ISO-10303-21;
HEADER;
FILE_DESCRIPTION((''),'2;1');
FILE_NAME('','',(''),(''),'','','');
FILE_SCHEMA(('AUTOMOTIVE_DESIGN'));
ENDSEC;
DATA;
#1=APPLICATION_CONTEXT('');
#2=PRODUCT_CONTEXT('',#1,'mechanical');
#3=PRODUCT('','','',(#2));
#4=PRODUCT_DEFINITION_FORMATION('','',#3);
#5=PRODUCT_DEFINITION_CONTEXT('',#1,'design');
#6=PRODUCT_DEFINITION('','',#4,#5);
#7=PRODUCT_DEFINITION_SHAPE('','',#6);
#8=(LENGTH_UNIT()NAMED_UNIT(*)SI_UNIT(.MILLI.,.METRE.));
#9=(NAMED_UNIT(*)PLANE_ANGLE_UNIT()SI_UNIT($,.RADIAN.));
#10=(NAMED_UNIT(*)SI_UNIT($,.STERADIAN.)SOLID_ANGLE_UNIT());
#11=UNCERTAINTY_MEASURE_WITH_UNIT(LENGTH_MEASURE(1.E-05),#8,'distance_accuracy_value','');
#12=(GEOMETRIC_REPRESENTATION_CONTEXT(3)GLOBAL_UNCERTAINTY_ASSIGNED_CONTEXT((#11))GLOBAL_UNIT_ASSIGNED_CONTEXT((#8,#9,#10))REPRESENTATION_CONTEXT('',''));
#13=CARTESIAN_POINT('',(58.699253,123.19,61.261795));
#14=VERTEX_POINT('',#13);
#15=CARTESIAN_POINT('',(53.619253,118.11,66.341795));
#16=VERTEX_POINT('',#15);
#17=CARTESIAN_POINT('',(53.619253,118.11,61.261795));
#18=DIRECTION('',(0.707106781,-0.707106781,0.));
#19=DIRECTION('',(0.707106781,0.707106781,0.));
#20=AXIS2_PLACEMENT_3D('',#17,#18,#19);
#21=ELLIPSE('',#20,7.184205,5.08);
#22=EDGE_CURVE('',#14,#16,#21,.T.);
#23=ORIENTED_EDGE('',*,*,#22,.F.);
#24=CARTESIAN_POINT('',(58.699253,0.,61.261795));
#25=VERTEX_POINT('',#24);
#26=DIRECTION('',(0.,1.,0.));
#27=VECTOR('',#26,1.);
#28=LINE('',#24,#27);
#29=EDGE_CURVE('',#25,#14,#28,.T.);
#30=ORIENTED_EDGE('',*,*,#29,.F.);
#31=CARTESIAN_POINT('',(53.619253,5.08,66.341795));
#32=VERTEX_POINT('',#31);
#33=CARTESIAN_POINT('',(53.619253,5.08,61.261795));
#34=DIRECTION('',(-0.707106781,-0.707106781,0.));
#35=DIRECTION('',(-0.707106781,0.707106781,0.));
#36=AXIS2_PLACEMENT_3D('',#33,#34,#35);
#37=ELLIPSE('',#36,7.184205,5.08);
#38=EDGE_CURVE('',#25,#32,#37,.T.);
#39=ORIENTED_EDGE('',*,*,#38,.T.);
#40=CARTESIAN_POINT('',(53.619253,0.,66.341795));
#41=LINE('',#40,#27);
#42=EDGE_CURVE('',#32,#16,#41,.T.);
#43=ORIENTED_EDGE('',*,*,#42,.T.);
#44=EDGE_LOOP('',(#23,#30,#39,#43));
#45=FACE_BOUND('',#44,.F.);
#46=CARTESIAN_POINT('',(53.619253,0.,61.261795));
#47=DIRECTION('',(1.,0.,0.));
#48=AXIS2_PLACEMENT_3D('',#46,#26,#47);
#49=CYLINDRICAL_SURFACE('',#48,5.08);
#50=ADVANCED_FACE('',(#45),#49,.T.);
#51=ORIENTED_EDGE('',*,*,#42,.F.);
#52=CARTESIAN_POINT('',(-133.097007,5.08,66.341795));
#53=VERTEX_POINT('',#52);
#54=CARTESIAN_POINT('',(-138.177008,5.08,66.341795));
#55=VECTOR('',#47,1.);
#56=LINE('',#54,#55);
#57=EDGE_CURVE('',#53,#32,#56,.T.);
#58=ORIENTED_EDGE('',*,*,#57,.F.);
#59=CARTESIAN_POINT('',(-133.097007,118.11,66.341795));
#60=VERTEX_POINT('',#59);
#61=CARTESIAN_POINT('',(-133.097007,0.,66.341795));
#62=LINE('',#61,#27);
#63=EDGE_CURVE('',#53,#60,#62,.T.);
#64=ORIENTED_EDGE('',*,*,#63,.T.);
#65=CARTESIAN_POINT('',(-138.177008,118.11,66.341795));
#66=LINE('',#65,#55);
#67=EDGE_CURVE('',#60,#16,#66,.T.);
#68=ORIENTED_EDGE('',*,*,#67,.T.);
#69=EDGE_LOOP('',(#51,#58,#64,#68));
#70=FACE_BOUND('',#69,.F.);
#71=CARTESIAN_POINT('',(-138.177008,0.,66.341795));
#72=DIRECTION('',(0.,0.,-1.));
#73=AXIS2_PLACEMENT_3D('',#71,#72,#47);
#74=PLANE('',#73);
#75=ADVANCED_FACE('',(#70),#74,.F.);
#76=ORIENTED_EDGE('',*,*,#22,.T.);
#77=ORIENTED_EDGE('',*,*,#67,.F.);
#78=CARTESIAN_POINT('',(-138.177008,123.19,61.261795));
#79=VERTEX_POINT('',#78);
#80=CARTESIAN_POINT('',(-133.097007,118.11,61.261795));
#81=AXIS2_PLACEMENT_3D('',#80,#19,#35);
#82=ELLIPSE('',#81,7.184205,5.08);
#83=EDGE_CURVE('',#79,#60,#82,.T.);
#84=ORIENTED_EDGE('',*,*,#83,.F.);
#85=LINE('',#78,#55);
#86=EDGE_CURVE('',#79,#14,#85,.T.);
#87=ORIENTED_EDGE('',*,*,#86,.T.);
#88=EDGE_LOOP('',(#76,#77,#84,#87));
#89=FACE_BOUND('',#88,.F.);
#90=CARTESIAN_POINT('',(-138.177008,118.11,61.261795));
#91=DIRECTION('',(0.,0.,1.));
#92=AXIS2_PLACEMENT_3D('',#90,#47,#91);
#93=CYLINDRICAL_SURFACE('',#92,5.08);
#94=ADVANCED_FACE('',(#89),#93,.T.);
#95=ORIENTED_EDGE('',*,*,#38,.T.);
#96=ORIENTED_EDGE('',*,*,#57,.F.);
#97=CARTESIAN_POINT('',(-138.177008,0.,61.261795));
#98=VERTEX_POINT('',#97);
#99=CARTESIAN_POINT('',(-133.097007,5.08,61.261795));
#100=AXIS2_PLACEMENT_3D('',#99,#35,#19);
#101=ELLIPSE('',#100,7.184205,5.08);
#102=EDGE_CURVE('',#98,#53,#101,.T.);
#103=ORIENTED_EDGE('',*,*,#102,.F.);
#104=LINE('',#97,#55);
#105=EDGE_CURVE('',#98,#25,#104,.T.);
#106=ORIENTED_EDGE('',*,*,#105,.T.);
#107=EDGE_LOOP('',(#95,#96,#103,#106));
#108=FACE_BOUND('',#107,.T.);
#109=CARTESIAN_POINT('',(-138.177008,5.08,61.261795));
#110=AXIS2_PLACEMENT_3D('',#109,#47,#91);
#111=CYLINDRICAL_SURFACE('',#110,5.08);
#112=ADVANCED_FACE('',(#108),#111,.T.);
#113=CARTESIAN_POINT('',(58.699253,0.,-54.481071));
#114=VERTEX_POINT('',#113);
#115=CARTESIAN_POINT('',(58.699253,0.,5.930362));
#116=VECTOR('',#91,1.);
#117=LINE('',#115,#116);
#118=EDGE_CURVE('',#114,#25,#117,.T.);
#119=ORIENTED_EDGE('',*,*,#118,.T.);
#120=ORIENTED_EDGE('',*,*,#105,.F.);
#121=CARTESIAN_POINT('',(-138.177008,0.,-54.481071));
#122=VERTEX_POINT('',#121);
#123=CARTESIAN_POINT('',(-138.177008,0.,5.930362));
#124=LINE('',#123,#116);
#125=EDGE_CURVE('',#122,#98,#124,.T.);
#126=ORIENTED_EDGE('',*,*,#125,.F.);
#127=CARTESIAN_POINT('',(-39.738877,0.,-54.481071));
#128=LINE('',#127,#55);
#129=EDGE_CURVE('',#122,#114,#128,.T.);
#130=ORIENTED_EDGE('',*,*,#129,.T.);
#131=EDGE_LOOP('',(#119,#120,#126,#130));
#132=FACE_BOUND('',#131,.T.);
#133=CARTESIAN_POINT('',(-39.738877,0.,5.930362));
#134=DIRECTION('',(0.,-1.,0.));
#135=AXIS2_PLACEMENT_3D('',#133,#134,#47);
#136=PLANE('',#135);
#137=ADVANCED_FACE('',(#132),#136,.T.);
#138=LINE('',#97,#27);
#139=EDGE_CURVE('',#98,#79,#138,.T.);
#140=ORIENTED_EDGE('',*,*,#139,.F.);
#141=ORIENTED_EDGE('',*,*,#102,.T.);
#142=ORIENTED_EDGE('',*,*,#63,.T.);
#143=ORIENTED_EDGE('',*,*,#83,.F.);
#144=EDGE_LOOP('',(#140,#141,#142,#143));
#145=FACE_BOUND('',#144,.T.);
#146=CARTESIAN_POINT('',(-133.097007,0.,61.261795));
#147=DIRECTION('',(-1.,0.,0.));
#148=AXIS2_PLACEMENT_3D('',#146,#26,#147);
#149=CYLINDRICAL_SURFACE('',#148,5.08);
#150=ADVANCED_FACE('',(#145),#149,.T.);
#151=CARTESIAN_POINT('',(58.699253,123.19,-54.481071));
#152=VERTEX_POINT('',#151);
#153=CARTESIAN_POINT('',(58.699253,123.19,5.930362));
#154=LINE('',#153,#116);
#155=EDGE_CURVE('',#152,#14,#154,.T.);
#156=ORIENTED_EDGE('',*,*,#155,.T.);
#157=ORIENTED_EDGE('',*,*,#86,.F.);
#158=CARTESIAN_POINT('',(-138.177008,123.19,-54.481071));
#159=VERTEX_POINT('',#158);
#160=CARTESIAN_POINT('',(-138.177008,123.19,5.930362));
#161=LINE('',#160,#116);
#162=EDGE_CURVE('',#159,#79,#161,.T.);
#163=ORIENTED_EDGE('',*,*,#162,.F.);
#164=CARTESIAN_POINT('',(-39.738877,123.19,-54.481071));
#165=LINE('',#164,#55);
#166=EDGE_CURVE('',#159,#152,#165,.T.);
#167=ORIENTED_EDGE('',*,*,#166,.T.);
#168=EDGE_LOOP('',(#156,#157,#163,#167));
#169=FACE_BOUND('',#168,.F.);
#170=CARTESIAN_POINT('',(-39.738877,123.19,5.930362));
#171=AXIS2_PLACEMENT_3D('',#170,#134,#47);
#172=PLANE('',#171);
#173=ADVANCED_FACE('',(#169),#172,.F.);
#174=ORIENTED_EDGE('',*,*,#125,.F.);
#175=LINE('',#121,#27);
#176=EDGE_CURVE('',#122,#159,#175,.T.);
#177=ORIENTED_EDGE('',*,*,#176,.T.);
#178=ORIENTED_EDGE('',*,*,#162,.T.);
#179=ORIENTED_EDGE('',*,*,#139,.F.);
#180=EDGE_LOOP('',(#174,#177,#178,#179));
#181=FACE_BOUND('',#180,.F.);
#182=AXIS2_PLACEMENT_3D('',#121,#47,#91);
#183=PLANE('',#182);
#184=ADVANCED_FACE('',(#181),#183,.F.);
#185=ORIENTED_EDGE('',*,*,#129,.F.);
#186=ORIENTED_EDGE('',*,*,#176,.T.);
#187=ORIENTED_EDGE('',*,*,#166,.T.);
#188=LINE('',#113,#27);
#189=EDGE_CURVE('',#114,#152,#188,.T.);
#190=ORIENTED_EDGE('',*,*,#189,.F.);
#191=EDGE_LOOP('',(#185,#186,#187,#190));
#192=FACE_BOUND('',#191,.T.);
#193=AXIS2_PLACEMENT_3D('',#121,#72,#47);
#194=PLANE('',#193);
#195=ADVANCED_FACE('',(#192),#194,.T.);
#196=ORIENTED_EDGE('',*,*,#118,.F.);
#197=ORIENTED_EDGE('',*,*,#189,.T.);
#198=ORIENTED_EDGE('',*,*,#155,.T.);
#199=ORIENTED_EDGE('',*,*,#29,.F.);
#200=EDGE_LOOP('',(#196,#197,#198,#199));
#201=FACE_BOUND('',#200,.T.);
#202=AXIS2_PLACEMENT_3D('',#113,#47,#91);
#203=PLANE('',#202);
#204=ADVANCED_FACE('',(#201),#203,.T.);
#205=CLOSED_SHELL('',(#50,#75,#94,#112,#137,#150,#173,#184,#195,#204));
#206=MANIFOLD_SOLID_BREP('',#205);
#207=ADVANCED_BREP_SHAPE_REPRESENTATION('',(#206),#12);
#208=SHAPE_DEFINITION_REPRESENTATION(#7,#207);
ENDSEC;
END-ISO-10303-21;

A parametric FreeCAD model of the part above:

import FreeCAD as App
import Part
import Sketcher
Q = App.Units.Quantity


def edges_at(feature, points):
    """Names of the edges that pass closest to the given points."""
    edges = feature.Shape.Edges
    near = lambda p: min(range(len(edges)), key=lambda i: edges[i].distToShape(Part.Vertex(*p))[0])
    return sorted({f"Edge{near(p) + 1}" for p in points})

doc = App.newDocument("Part")
body = doc.addObject("PartDesign::Body", "Body")

# Sketch on XZ plane
sketch1 = body.newObject("Sketcher::SketchObject", "Sketch")
sketch1.AttachmentSupport = (doc.getObject("XZ_Plane"), [""])
sketch1.MapMode = "FlatFace"
sketch1.addGeometry(Part.LineSegment(App.Vector(-138, 66, 0), App.Vector(-138, -54, 0)), False)
sketch1.addGeometry(Part.LineSegment(App.Vector(-138, -54, 0), App.Vector(59, -54, 0)), False)
sketch1.addGeometry(Part.LineSegment(App.Vector(59, -54, 0), App.Vector(59, 66, 0)), False)
sketch1.addGeometry(Part.LineSegment(App.Vector(59, 66, 0), App.Vector(-138, 66, 0)), False)
sketch1.addConstraint(Sketcher.Constraint("Coincident", 0, 2, 1, 1))
sketch1.addConstraint(Sketcher.Constraint("Coincident", 1, 2, 2, 1))
sketch1.addConstraint(Sketcher.Constraint("Coincident", 2, 2, 3, 1))
sketch1.addConstraint(Sketcher.Constraint("Coincident", 3, 2, 0, 1))
sketch1.addConstraint(Sketcher.Constraint("Vertical", 0))
sketch1.addConstraint(Sketcher.Constraint("Horizontal", 1))
sketch1.addConstraint(Sketcher.Constraint("Vertical", 2))
sketch1.addConstraint(Sketcher.Constraint("Horizontal", 3))
sketch1.addConstraint(Sketcher.Constraint("DistanceX", 1, 1, 1, 2, 196.876261))
sketch1.addConstraint(Sketcher.Constraint("DistanceY", 0, 2, 0, 1, 120.822865))
sketch1.addConstraint(Sketcher.Constraint("DistanceY", 0, 2, -1, 1, 54.481071))
sketch1.addConstraint(Sketcher.Constraint("DistanceX", 0, 2, -1, 1, 138.177008))
pad1 = body.newObject("PartDesign::Pad", "Pad")
pad1.Profile = sketch1
pad1.Length = Q("4.85 in")
pad1.Reversed = True
doc.recompute()

fillet = body.newObject("PartDesign::Fillet", "Fillet")
fillet.Base = (pad1, edges_at(pad1, [
    (58.699, 61.595, 66.342),
    (-138.177, 61.595, 66.342),
    (-39.739, 0, 66.342),
    (-39.739, 123.19, 66.342),
]))
fillet.Radius = Q("0.2 in")

doc.recompute()
